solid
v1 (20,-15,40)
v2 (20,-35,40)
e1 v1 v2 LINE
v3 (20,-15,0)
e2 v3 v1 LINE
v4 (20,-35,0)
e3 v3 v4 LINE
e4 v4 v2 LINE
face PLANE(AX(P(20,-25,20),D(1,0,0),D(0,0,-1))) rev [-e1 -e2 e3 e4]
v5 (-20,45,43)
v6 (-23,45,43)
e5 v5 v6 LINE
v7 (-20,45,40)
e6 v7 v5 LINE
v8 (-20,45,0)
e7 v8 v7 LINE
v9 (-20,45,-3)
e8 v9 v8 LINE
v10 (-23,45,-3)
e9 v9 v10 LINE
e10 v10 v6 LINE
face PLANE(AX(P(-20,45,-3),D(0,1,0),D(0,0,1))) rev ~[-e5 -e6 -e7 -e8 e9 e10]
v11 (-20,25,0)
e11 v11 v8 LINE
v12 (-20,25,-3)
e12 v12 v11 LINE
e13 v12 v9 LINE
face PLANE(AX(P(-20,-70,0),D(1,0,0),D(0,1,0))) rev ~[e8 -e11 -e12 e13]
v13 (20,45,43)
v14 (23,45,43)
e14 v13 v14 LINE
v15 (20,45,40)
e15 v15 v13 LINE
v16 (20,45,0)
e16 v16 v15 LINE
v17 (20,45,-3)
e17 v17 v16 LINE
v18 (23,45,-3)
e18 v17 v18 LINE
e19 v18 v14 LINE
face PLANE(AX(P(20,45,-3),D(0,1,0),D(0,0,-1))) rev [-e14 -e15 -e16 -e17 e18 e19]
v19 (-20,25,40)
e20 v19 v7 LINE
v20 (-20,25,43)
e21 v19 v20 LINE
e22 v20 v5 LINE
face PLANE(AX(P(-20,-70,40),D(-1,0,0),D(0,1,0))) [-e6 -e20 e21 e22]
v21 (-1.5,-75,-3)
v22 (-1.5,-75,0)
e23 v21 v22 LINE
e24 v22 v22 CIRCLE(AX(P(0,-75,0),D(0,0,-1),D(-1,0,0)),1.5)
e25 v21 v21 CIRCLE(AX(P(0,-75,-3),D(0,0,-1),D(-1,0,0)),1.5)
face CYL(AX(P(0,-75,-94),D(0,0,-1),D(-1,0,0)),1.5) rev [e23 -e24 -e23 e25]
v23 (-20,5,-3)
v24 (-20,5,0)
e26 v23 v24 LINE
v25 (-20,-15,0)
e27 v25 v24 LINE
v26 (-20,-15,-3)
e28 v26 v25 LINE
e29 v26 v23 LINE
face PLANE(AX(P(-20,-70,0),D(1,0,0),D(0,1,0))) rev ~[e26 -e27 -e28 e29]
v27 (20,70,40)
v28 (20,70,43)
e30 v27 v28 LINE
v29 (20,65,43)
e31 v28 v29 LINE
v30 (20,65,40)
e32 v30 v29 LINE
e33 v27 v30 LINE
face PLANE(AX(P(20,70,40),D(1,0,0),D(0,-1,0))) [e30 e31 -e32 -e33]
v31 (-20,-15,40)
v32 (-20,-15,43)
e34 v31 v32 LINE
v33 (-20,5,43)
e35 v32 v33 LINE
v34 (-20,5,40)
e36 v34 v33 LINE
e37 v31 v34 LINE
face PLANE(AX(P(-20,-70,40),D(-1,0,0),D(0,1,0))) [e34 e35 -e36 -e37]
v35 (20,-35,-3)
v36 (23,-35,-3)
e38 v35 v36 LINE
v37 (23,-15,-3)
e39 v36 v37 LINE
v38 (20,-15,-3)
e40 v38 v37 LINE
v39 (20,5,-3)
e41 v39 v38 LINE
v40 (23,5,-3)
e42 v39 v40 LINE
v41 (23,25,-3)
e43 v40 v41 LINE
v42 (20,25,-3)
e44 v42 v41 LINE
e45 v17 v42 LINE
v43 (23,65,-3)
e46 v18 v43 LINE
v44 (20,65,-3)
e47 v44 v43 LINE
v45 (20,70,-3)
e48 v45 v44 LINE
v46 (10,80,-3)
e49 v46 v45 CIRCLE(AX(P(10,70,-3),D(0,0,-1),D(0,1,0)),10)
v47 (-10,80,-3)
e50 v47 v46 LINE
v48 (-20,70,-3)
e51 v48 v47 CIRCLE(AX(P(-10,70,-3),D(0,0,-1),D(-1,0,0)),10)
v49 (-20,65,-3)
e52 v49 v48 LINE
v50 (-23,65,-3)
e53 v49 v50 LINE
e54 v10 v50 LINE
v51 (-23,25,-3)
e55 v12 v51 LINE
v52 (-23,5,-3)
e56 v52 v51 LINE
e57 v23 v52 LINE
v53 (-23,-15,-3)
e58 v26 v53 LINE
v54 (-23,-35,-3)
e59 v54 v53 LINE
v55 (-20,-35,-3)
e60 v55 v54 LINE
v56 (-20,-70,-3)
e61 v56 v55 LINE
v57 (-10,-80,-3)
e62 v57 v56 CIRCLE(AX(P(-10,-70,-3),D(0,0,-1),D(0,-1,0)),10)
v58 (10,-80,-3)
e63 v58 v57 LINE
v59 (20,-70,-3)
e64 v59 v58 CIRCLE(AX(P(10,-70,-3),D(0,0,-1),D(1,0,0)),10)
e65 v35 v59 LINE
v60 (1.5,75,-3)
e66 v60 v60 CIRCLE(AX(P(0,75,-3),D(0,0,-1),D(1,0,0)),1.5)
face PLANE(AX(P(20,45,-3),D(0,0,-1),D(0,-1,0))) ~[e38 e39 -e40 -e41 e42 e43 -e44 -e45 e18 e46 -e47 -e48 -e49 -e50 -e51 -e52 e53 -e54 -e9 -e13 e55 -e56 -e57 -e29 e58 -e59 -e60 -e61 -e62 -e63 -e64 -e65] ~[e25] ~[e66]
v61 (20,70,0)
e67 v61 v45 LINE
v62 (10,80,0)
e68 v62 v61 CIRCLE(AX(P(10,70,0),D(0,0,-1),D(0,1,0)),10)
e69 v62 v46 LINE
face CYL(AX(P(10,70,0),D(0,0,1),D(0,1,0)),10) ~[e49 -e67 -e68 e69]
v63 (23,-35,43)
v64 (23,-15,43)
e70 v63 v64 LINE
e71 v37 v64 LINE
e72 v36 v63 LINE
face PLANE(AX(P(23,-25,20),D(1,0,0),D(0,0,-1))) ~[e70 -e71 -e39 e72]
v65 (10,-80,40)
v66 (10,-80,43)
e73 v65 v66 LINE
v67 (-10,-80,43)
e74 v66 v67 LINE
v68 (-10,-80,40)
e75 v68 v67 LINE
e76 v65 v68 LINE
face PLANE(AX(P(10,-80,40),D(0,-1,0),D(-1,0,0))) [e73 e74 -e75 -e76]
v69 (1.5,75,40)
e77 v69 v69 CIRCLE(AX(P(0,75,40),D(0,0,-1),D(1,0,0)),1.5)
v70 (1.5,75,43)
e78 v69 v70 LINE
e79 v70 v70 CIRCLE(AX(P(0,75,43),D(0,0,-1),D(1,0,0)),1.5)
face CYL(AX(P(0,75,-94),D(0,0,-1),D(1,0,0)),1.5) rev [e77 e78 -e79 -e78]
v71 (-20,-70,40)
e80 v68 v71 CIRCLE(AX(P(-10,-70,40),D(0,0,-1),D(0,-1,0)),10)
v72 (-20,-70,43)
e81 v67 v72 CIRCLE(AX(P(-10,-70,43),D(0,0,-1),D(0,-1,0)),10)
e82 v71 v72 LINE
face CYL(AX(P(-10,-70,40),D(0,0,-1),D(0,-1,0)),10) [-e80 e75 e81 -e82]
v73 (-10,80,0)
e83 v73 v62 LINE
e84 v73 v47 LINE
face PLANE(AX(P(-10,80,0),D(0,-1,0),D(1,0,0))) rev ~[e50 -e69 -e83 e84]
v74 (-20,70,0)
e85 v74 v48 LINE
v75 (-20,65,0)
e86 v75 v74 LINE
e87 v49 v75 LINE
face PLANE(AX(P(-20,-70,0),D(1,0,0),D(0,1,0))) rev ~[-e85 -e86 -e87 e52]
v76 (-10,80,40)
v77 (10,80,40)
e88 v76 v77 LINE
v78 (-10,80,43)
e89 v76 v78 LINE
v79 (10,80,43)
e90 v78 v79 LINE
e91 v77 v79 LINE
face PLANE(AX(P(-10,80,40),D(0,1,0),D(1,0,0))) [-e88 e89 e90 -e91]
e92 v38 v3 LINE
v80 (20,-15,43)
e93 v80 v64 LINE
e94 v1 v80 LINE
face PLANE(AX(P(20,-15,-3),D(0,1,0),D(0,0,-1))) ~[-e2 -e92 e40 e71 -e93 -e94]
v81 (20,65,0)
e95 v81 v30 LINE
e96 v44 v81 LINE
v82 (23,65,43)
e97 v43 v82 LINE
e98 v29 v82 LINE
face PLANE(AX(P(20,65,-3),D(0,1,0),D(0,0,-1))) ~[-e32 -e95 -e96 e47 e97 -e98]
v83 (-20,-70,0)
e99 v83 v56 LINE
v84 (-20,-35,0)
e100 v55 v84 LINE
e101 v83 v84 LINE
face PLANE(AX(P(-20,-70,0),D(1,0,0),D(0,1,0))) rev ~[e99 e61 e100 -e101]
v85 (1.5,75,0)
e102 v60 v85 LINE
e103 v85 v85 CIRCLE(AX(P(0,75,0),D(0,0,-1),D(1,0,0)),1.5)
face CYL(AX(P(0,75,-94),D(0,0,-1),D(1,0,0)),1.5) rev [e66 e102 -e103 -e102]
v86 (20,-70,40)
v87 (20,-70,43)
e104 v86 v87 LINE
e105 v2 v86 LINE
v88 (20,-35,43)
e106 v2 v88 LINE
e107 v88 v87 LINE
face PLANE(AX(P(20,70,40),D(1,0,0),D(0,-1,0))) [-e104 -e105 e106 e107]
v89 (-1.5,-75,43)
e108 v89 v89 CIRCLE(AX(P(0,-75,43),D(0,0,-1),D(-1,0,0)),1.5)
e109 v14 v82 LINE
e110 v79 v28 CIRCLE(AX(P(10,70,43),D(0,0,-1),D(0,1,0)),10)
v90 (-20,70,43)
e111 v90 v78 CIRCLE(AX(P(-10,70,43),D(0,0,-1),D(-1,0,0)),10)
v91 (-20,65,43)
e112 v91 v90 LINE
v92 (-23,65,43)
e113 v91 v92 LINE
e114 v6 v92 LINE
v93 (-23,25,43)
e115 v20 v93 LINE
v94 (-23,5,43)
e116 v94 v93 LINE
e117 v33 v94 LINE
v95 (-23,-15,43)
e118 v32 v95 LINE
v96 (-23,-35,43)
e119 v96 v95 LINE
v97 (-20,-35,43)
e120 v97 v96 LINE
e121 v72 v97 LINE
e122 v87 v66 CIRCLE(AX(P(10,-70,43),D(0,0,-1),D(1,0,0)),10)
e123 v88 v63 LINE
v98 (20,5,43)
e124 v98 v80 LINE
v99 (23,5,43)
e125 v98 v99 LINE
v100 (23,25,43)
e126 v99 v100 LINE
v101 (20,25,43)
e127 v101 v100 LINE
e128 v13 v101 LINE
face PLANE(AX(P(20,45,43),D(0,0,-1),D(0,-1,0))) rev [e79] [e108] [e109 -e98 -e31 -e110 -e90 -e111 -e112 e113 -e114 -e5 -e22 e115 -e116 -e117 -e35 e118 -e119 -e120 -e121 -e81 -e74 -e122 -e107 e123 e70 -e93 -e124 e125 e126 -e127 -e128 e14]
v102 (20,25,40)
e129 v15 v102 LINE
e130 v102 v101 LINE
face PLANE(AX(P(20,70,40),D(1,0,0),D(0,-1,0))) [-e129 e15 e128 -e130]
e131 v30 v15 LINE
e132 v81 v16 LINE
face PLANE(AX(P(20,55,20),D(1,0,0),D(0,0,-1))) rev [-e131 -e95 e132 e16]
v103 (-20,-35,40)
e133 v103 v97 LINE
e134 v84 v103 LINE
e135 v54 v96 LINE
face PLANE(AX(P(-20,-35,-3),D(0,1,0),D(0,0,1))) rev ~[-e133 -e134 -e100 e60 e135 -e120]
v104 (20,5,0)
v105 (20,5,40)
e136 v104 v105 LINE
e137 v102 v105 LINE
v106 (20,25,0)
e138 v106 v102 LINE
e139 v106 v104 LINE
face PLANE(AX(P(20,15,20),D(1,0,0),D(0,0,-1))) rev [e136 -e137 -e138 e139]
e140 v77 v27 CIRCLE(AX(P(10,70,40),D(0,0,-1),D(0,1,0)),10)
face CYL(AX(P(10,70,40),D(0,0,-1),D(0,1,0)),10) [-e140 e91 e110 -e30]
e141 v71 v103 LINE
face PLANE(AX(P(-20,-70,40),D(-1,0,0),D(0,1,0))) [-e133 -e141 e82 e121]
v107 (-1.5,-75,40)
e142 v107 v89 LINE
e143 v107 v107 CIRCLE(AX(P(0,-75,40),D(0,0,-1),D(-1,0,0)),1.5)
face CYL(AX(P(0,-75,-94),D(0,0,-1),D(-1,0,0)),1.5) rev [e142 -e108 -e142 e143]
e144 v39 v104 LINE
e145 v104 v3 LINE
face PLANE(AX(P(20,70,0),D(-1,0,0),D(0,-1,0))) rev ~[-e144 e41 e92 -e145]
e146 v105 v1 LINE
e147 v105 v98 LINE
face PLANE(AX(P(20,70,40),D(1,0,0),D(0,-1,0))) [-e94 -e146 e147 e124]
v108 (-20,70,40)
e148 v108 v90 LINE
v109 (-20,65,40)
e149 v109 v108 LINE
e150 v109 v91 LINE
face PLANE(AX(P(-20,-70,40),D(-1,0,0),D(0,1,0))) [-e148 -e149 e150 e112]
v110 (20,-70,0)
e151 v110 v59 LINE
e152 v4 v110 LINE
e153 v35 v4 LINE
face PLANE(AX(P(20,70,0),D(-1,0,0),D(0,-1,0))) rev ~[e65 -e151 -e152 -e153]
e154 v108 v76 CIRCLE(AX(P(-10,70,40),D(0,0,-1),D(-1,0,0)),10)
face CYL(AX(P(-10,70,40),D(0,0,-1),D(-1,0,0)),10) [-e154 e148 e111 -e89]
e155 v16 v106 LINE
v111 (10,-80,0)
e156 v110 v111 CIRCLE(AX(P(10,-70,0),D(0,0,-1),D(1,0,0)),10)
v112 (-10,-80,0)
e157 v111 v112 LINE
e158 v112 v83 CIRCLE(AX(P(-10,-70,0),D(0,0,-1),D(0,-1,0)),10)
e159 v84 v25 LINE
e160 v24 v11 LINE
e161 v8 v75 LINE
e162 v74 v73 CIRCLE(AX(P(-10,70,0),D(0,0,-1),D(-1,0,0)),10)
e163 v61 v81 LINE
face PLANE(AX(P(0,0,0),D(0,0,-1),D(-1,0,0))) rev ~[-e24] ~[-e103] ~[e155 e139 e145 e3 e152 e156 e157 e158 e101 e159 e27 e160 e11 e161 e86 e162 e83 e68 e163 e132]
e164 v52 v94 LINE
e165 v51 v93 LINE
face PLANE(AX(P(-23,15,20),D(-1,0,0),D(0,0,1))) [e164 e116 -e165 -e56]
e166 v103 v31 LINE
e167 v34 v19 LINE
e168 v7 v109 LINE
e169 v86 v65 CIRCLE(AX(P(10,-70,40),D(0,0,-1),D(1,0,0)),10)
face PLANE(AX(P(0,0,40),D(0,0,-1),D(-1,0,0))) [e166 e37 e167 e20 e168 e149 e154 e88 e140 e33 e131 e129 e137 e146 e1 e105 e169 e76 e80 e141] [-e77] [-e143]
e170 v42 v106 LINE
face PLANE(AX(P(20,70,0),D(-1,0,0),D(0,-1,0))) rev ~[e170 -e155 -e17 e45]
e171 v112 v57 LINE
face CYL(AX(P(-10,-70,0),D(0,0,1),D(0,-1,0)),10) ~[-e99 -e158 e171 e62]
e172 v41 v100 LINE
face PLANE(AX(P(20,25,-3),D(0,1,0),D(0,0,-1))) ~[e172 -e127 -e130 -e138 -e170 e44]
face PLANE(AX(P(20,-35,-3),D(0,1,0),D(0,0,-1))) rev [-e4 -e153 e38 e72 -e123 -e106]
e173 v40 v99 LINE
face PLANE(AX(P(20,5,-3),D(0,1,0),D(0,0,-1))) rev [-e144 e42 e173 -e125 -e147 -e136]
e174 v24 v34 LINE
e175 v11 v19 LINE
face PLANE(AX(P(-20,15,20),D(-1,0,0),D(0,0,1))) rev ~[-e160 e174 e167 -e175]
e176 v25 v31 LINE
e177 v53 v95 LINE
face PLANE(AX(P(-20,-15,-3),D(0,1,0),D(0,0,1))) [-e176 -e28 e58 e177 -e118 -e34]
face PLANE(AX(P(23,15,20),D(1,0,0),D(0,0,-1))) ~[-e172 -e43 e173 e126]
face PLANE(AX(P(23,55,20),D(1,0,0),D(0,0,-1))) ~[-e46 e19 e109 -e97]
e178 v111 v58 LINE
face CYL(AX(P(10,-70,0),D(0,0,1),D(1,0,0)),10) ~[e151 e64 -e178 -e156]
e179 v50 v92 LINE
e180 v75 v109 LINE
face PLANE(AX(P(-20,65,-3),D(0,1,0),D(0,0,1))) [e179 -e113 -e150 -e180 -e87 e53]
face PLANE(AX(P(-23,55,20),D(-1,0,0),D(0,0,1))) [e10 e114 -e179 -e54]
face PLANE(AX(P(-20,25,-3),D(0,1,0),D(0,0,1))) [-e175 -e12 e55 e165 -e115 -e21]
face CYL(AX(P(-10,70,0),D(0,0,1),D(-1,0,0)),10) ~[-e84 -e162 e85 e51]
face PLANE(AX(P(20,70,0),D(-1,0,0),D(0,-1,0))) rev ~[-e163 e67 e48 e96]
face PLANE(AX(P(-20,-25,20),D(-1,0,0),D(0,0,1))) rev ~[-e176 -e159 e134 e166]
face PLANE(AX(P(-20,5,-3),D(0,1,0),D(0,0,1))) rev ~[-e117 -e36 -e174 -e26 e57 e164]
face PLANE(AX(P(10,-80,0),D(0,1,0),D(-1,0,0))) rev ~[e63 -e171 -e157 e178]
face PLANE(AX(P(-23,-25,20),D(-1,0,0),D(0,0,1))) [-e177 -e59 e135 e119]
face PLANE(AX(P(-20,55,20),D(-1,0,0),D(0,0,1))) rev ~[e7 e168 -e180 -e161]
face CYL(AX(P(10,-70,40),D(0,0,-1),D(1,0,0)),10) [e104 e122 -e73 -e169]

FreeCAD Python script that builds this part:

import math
import FreeCAD as App
import Part
import Sketcher


def add_polygon(sketch, points):
    """Adds a closed chain of lines whose ends are joined by coincident constraints."""
    first, n = sketch.GeometryCount, len(points)
    for a, b in zip(points, points[1:] + points[:1]):
        sketch.addGeometry(Part.LineSegment(App.Vector(*a, 0), App.Vector(*b, 0)), False)
    for i in range(n):
        sketch.addConstraint(Sketcher.Constraint("Coincident", first + i, 2, first + (i + 1) % n, 1))

doc = App.newDocument("Part")
body = doc.addObject("PartDesign::Body", "Body")

# Sketch on XY plane
sketch1 = body.newObject("Sketcher::SketchObject", "Sketch")
sketch1.AttachmentSupport = (doc.getObject("XY_Plane"), [""])
sketch1.MapMode = "FlatFace"
sketch1.AttachmentOffset = App.Placement(App.Vector(0, 0, 40), App.Rotation())
sketch1.addGeometry(Part.LineSegment(App.Vector(10, 80, 0), App.Vector(-10, 80, 0)), False)
sketch1.addGeometry(Part.ArcOfCircle(Part.Circle(App.Vector(-10, 70, 0), App.Vector(0, 0, 1), 10), math.radians(90), math.radians(180)), False)
sketch1.addGeometry(Part.LineSegment(App.Vector(-20, 70, 0), App.Vector(-20, -70, 0)), False)
sketch1.addGeometry(Part.ArcOfCircle(Part.Circle(App.Vector(-10, -70, 0), App.Vector(0, 0, 1), 10), math.radians(180), math.radians(270)), False)
sketch1.addGeometry(Part.LineSegment(App.Vector(-10, -80, 0), App.Vector(10, -80, 0)), False)
sketch1.addGeometry(Part.ArcOfCircle(Part.Circle(App.Vector(10, -70, 0), App.Vector(0, 0, 1), 10), math.radians(-90), math.radians(0)), False)
sketch1.addGeometry(Part.LineSegment(App.Vector(20, -70, 0), App.Vector(20, 70, 0)), False)
sketch1.addGeometry(Part.ArcOfCircle(Part.Circle(App.Vector(10, 70, 0), App.Vector(0, 0, 1), 10), math.radians(0), math.radians(90)), False)
sketch1.addConstraint(Sketcher.Constraint("Tangent", 0, 2, 1, 1))
sketch1.addConstraint(Sketcher.Constraint("Tangent", 1, 2, 2, 1))
sketch1.addConstraint(Sketcher.Constraint("Tangent", 2, 2, 3, 1))
sketch1.addConstraint(Sketcher.Constraint("Tangent", 3, 2, 4, 1))
sketch1.addConstraint(Sketcher.Constraint("Tangent", 4, 2, 5, 1))
sketch1.addConstraint(Sketcher.Constraint("Tangent", 5, 2, 6, 1))
sketch1.addConstraint(Sketcher.Constraint("Tangent", 6, 2, 7, 1))
sketch1.addConstraint(Sketcher.Constraint("Tangent", 7, 2, 0, 1))
sketch1.addConstraint(Sketcher.Constraint("Horizontal", 0))
sketch1.addConstraint(Sketcher.Constraint("Vertical", 2))
sketch1.addConstraint(Sketcher.Constraint("Horizontal", 4))
sketch1.addConstraint(Sketcher.Constraint("Vertical", 6))
sketch1.addConstraint(Sketcher.Constraint("Equal", 1, 3))
sketch1.addConstraint(Sketcher.Constraint("Equal", 3, 5))
sketch1.addConstraint(Sketcher.Constraint("Equal", 5, 7))
sketch1.addConstraint(Sketcher.Constraint("Symmetric", 1, 3, 5, 3, -1, 1))
sketch1.addConstraint(Sketcher.Constraint("Radius", 1, 10.0))
sketch1.addConstraint(Sketcher.Constraint("DistanceX", 0, 2, 0, 1, 20.0))
sketch1.addConstraint(Sketcher.Constraint("DistanceY", 2, 2, 2, 1, 140.0))
pad1 = body.newObject("PartDesign::Pad", "Pad")
pad1.Profile = sketch1
pad1.Length = 3
body2 = doc.addObject("PartDesign::Body", "Body001")

# Sketch on XY plane
sketch2 = body2.newObject("Sketcher::SketchObject", "Sketch001")
sketch2.AttachmentSupport = (doc.getObject("XY_Plane001"), [""])
sketch2.MapMode = "FlatFace"
sketch2.addGeometry(Part.LineSegment(App.Vector(10, 80, 0), App.Vector(-10, 80, 0)), False)
sketch2.addGeometry(Part.ArcOfCircle(Part.Circle(App.Vector(-10, 70, 0), App.Vector(0, 0, 1), 10), math.radians(90), math.radians(180)), False)
sketch2.addGeometry(Part.LineSegment(App.Vector(-20, 70, 0), App.Vector(-20, -70, 0)), False)
sketch2.addGeometry(Part.ArcOfCircle(Part.Circle(App.Vector(-10, -70, 0), App.Vector(0, 0, 1), 10), math.radians(180), math.radians(270)), False)
sketch2.addGeometry(Part.LineSegment(App.Vector(-10, -80, 0), App.Vector(10, -80, 0)), False)
sketch2.addGeometry(Part.ArcOfCircle(Part.Circle(App.Vector(10, -70, 0), App.Vector(0, 0, 1), 10), math.radians(-90), math.radians(0)), False)
sketch2.addGeometry(Part.LineSegment(App.Vector(20, -70, 0), App.Vector(20, 70, 0)), False)
sketch2.addGeometry(Part.ArcOfCircle(Part.Circle(App.Vector(10, 70, 0), App.Vector(0, 0, 1), 10), math.radians(0), math.radians(90)), False)
sketch2.addConstraint(Sketcher.Constraint("Tangent", 0, 2, 1, 1))
sketch2.addConstraint(Sketcher.Constraint("Tangent", 1, 2, 2, 1))
sketch2.addConstraint(Sketcher.Constraint("Tangent", 2, 2, 3, 1))
sketch2.addConstraint(Sketcher.Constraint("Tangent", 3, 2, 4, 1))
sketch2.addConstraint(Sketcher.Constraint("Tangent", 4, 2, 5, 1))
sketch2.addConstraint(Sketcher.Constraint("Tangent", 5, 2, 6, 1))
sketch2.addConstraint(Sketcher.Constraint("Tangent", 6, 2, 7, 1))
sketch2.addConstraint(Sketcher.Constraint("Tangent", 7, 2, 0, 1))
sketch2.addConstraint(Sketcher.Constraint("Horizontal", 0))
sketch2.addConstraint(Sketcher.Constraint("Vertical", 2))
sketch2.addConstraint(Sketcher.Constraint("Horizontal", 4))
sketch2.addConstraint(Sketcher.Constraint("Vertical", 6))
sketch2.addConstraint(Sketcher.Constraint("Equal", 1, 3))
sketch2.addConstraint(Sketcher.Constraint("Equal", 3, 5))
sketch2.addConstraint(Sketcher.Constraint("Equal", 5, 7))
sketch2.addConstraint(Sketcher.Constraint("Symmetric", 1, 3, 5, 3, -1, 1))
sketch2.addConstraint(Sketcher.Constraint("Radius", 1, 10.0))
sketch2.addConstraint(Sketcher.Constraint("DistanceX", 0, 2, 0, 1, 20.0))
sketch2.addConstraint(Sketcher.Constraint("DistanceY", 2, 2, 2, 1, 140.0))
pad2 = body2.newObject("PartDesign::Pad", "Pad001")
pad2.Profile = sketch2
pad2.Length = 3
pad2.Reversed = True
body3 = doc.addObject("PartDesign::Body", "Body002")
body3.AllowCompound = True

# Sketch on XY plane
sketch3 = body3.newObject("Sketcher::SketchObject", "Sketch002")
sketch3.AttachmentSupport = (doc.getObject("XY_Plane002"), [""])
sketch3.MapMode = "FlatFace"
sketch3.addGeometry(Part.Circle(App.Vector(0, 75, 0), App.Vector(0, 0, 1), 1.5), False)
sketch3.addGeometry(Part.Circle(App.Vector(0, -75, 0), App.Vector(0, 0, 1), 1.5), False)
sketch3.addConstraint(Sketcher.Constraint("Equal", 0, 1))
sketch3.addConstraint(Sketcher.Constraint("Symmetric", 0, 3, 1, 3, -1, 1))
sketch3.addConstraint(Sketcher.Constraint("PointOnObject", 0, 3, -2))
sketch3.addConstraint(Sketcher.Constraint("Diameter", 0, 3.0))
sketch3.addConstraint(Sketcher.Constraint("DistanceY", -1, 1, 0, 3, 75.0))
pad3 = body3.newObject("PartDesign::Pad", "Pad002")
pad3.Profile = sketch3
pad3.Type = "TwoLengths"
pad3.Length = 94
pad3.Length2 = 94
doc.recompute()

body4 = doc.addObject("PartDesign::Body", "Body003")
body4.BaseFeature = body3
boolean = body.newObject("PartDesign::Boolean", "Boolean")
boolean.Type = "Cut"
boolean.addObjects([body4])
doc.recompute()

boolean2 = body2.newObject("PartDesign::Boolean", "Boolean001")
boolean2.Type = "Cut"
boolean2.addObjects([body3])
body.AllowCompound = True
doc.recompute()

boolean3 = body.newObject("PartDesign::Boolean", "Boolean002")
boolean3.Type = "Fuse"
boolean3.addObjects([body2])

# Sketch on YZ plane
sketch4 = body.newObject("Sketcher::SketchObject", "Sketch003")
sketch4.AttachmentSupport = (doc.getObject("YZ_Plane"), [""])
sketch4.MapMode = "FlatFace"
sketch4.AttachmentOffset = App.Placement(App.Vector(0, 0, -20), App.Rotation())
add_polygon(sketch4, [(65, -3), (45, -3), (45, 43), (65, 43)])  # lines 0-3
add_polygon(sketch4, [(25, -3), (5, -3), (5, 43), (25, 43)])  # lines 4-7
add_polygon(sketch4, [(-15, -3), (-35, -3), (-35, 43), (-15, 43)])  # lines 8-11
sketch4.addConstraint(Sketcher.Constraint("Horizontal", 0))
sketch4.addConstraint(Sketcher.Constraint("Vertical", 1))
sketch4.addConstraint(Sketcher.Constraint("Horizontal", 2))
sketch4.addConstraint(Sketcher.Constraint("Vertical", 3))
sketch4.addConstraint(Sketcher.Constraint("Horizontal", 4))
sketch4.addConstraint(Sketcher.Constraint("Vertical", 5))
sketch4.addConstraint(Sketcher.Constraint("Horizontal", 6))
sketch4.addConstraint(Sketcher.Constraint("Vertical", 7))
sketch4.addConstraint(Sketcher.Constraint("Horizontal", 8))
sketch4.addConstraint(Sketcher.Constraint("Vertical", 9))
sketch4.addConstraint(Sketcher.Constraint("Horizontal", 10))
sketch4.addConstraint(Sketcher.Constraint("Vertical", 11))
sketch4.addConstraint(Sketcher.Constraint("Horizontal", 3, 2, 4, 2))
sketch4.addConstraint(Sketcher.Constraint("Horizontal", 2, 2, 5, 2))
sketch4.addConstraint(Sketcher.Constraint("Horizontal", 7, 2, 8, 2))
sketch4.addConstraint(Sketcher.Constraint("Horizontal", 6, 2, 9, 2))
sketch4.addConstraint(Sketcher.Constraint("Equal", 2, 4))
sketch4.addConstraint(Sketcher.Constraint("Equal", 6, 8))
sketch4.addConstraint(Sketcher.Constraint("DistanceX", 0, 2, 0, 1, 20.0))
sketch4.addConstraint(Sketcher.Constraint("DistanceY", 1, 1, 1, 2, 46.0))
sketch4.addConstraint(Sketcher.Constraint("DistanceX", -1, 1, 0, 2, 45.0))
sketch4.addConstraint(Sketcher.Constraint("DistanceY", 0, 2, -1, 1, 3.0))
sketch4.addConstraint(Sketcher.Constraint("DistanceX", -1, 1, 4, 2, 5.0))
sketch4.addConstraint(Sketcher.Constraint("DistanceX", 8, 2, -1, 1, 35.0))
pad4 = body.newObject("PartDesign::Pad", "Pad003")
pad4.Profile = sketch4
pad4.Length = 3
pad4.Reversed = True
doc.recompute()

mirrored = body.newObject("PartDesign::Mirrored", "Mirrored")
mirrored.Originals = [pad4]
mirrored.MirrorPlane = (doc.getObject("YZ_Plane"), [""])
body.Tip = mirrored

doc.recompute()
